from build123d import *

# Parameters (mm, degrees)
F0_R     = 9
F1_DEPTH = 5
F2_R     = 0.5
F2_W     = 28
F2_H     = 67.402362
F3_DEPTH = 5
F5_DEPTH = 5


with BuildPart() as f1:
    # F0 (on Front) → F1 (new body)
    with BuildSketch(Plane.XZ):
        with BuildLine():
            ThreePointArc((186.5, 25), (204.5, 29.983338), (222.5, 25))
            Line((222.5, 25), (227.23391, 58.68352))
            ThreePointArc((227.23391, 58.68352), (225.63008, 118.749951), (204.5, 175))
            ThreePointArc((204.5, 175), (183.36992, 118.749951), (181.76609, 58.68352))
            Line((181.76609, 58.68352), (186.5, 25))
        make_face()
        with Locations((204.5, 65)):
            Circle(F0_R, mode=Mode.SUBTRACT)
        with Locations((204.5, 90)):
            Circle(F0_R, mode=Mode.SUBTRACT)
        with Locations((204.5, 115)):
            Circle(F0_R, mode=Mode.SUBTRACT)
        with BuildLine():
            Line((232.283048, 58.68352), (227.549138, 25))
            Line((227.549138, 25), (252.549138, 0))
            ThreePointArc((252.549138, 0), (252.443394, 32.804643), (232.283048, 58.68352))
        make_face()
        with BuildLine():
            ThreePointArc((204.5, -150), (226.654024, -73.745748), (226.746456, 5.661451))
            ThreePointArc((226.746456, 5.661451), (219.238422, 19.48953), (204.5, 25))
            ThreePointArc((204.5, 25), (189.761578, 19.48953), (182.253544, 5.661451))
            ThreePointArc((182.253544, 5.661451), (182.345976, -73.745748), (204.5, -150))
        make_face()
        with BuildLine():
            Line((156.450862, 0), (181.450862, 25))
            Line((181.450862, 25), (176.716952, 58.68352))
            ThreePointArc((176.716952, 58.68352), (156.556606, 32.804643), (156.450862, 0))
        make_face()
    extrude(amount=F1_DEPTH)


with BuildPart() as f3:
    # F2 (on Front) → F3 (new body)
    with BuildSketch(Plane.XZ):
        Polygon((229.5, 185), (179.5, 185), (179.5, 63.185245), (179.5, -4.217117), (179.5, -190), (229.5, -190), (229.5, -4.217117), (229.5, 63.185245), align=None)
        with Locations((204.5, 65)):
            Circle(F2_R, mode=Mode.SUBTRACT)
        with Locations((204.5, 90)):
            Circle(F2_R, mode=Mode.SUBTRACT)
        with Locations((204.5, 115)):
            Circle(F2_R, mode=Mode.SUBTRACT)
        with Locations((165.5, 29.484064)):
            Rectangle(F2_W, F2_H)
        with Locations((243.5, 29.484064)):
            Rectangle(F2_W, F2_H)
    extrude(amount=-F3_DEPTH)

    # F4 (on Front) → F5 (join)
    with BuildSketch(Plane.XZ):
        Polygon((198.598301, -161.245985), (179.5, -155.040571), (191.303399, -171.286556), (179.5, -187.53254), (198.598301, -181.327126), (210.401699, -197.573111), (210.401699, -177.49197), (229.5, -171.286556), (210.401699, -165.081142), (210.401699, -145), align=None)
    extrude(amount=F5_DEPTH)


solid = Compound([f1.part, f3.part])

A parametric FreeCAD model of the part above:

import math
import FreeCAD as App
import Part
import Sketcher
from FreeCAD import Vector
Q = App.Units.Quantity

doc = App.newDocument("Part")
body = doc.addObject("PartDesign::Body", "Body")
body.AllowCompound = True

sketch1 = body.newObject("Sketcher::SketchObject", "Sketch")
sketch1.AttachmentSupport = (doc.getObject("XZ_Plane"), [""])
sketch1.MapMode = "FlatFace"
sketch1.addGeometry([
    Part.ArcOfCircle(Part.Circle(Vector(204, -5, 0), Vector(0, 0, 1), 35), math.radians(59), math.radians(121)),
    Part.LineSegment(Vector(222, 25, 0), Vector(227, 59, 0)),
    Part.ArcOfCircle(Part.Circle(Vector(48, 84, 0), Vector(0, 0, 1), 181), math.radians(-8), math.radians(30)),
    Part.ArcOfCircle(Part.Circle(Vector(361, 84, 0), Vector(0, 0, 1), 181), math.radians(150), math.radians(188)),
    Part.LineSegment(Vector(182, 59, 0), Vector(186, 25, 0)),
    Part.Circle(Vector(204, 65, 0), Vector(0, 0, 1), 9),
    Part.Circle(Vector(204, 90, 0), Vector(0, 0, 1), 9),
    Part.Circle(Vector(204, 115, 0), Vector(0, 0, 1), 9),
    Part.LineSegment(Vector(232, 59, 0), Vector(228, 25, 0)),
    Part.LineSegment(Vector(228, 25, 0), Vector(253, 0, 0)),
    Part.ArcOfCircle(Part.Circle(Vector(205, 16, 0), Vector(0, 0, 1), 51), math.radians(-19), math.radians(57)),
    Part.ArcOfCircle(Part.Circle(Vector(-53, -34, 0), Vector(0, 0, 1), 283), math.radians(-24), math.radians(8)),
    Part.ArcOfCircle(Part.Circle(Vector(205, 3, 0), Vector(0, 0, 1), 22), math.radians(8), math.radians(90)),
    Part.ArcOfCircle(Part.Circle(Vector(204, 3, 0), Vector(0, 0, 1), 22), math.radians(90), math.radians(172)),
    Part.ArcOfCircle(Part.Circle(Vector(462, -34, 0), Vector(0, 0, 1), 283), math.radians(172), math.radians(204)),
    Part.LineSegment(Vector(156, 0, 0), Vector(181, 25, 0)),
    Part.LineSegment(Vector(181, 25, 0), Vector(177, 59, 0)),
    Part.ArcOfCircle(Part.Circle(Vector(204, 16, 0), Vector(0, 0, 1), 51), math.radians(123), math.radians(199)),
], False)
sketch1.addConstraint([
    Sketcher.Constraint("Coincident", 0, 1, 1, 1),
    Sketcher.Constraint("Tangent", 1, 2, 2, 1),
    Sketcher.Constraint("Coincident", 2, 2, 3, 1),
    Sketcher.Constraint("Tangent", 3, 2, 4, 1),
    Sketcher.Constraint("Coincident", 4, 2, 0, 2),
    Sketcher.Constraint("Coincident", 8, 2, 9, 1),
    Sketcher.Constraint("Coincident", 9, 2, 10, 1),
    Sketcher.Constraint("Coincident", 10, 2, 8, 1),
    Sketcher.Constraint("Tangent", 11, 2, 12, 1),
    Sketcher.Constraint("Tangent", 12, 2, 13, 1),
    Sketcher.Constraint("Tangent", 13, 2, 14, 1),
    Sketcher.Constraint("Coincident", 14, 2, 11, 1),
    Sketcher.Constraint("Coincident", 15, 2, 16, 1),
    Sketcher.Constraint("Coincident", 16, 2, 17, 1),
    Sketcher.Constraint("Coincident", 17, 2, 15, 1),
    Sketcher.Constraint("Coincident", 17, 3, 10, 3),
    Sketcher.Constraint("Equal", 2, 3),
    Sketcher.Constraint("Equal", 5, 6),
    Sketcher.Constraint("Equal", 6, 7),
    Sketcher.Constraint("Equal", 12, 13),
    Sketcher.Constraint("Equal", 11, 14),
    Sketcher.Constraint("Equal", 10, 17),
    Sketcher.Constraint("PointOnObject", 9, 2, -1),
    Sketcher.Constraint("PointOnObject", 17, 2, -1),
    Sketcher.Constraint("Parallel", 1, 8),
    Sketcher.Constraint("Perpendicular", 9, 15),
    Sketcher.Constraint("Parallel", 4, 16),
    Sketcher.Constraint("Horizontal", 2, 3, 3, 3),
    Sketcher.Constraint("Horizontal", 11, 3, 14, 3),
    Sketcher.Constraint("Horizontal", 1, 2, 3, 2),
    Sketcher.Constraint("Horizontal", 0, 1, 4, 2),
    Sketcher.Constraint("Horizontal", 4, 2, 8, 2),
    Sketcher.Constraint("Horizontal", 3, 2, 10, 2),
    Sketcher.Constraint("Horizontal", 8, 2, 12, 2),
    Sketcher.Constraint("Horizontal", 12, 2, 15, 2),
    Sketcher.Constraint("Horizontal", 10, 2, 16, 2),
    Sketcher.Constraint("Vertical", 0, 3, 5, 3),
    Sketcher.Constraint("Vertical", 5, 3, 6, 3),
    Sketcher.Constraint("Vertical", 6, 3, 7, 3),
    Sketcher.Constraint("Vertical", 7, 3, 10, 3),
    Sketcher.Constraint("Vertical", 10, 3, 12, 3),
    Sketcher.Constraint("Vertical", 2, 2, 12, 2),
    Sketcher.Constraint("Diameter", 5, Q("18 mm")),
    Sketcher.Constraint("Radius", 0, Q("35 mm")),
    Sketcher.Constraint("Angle", 1, Q("82 deg")),
    Sketcher.Constraint("DistanceY", -1, 1, 5, 3, Q("65 mm")),
    Sketcher.Constraint("DistanceY", -1, 1, 6, 3, Q("90 mm")),
    Sketcher.Constraint("DistanceY", -1, 1, 7, 3, Q("115 mm")),
    Sketcher.Constraint("DistanceY", -1, 1, 0, 1, Q("25 mm")),
    Sketcher.Constraint("DistanceY", -1, 1, 2, 2, Q("175 mm")),
    Sketcher.Constraint("DistanceY", 14, 2, -1, 1, Q("150 mm")),
    Sketcher.Constraint("DistanceX", 10, 3, 0, 1, Q("17.999999 mm")),
    Sketcher.Constraint("DistanceX", -1, 1, 0, 3, Q("204.5 mm")),
    Sketcher.Constraint("Radius", 11, Q("282.939102 mm")),
    Sketcher.Constraint("Radius", 2, Q("181.473727 mm")),
    Sketcher.Constraint("Radius", 10, Q("50.721832 mm")),
    Sketcher.Constraint("Radius", 12, Q("22.465084 mm")),
])
pad1 = body.newObject("PartDesign::Pad", "Pad")
pad1.Profile = sketch1
pad1.Length = 5
body2 = doc.addObject("PartDesign::Body", "Body001")

sketch2 = body2.newObject("Sketcher::SketchObject", "Sketch001")
sketch2.AttachmentSupport = (doc.getObject("XZ_Plane001"), [""])
sketch2.MapMode = "FlatFace"
sketch2.addGeometry([
    Part.LineSegment(Vector(229.5, 185, 0), Vector(179.5, 185, 0)),
    Part.LineSegment(Vector(179.5, 185, 0), Vector(179.5, 63.2, 0)),
    Part.LineSegment(Vector(179.5, 63.2, 0), Vector(151.5, 63.2, 0)),
    Part.LineSegment(Vector(151.5, 63.2, 0), Vector(151.5, -4.2, 0)),
    Part.LineSegment(Vector(151.5, -4.2, 0), Vector(179.5, -4.2, 0)),
    Part.LineSegment(Vector(179.5, -4.2, 0), Vector(179.5, -190, 0)),
    Part.LineSegment(Vector(179.5, -190, 0), Vector(229.5, -190, 0)),
    Part.LineSegment(Vector(229.5, -190, 0), Vector(229.5, -4.2, 0)),
    Part.LineSegment(Vector(229.5, -4.2, 0), Vector(257.5, -4.2, 0)),
    Part.LineSegment(Vector(257.5, -4.2, 0), Vector(257.5, 63.2, 0)),
    Part.LineSegment(Vector(257.5, 63.2, 0), Vector(229.5, 63.2, 0)),
    Part.LineSegment(Vector(229.5, 63.2, 0), Vector(229.5, 185, 0)),
    Part.Circle(Vector(204.5, 65, 0), Vector(0, 0, 1), 0.5),
    Part.Circle(Vector(204.5, 90, 0), Vector(0, 0, 1), 0.5),
    Part.Circle(Vector(204.5, 115, 0), Vector(0, 0, 1), 0.5),
], False)
sketch2.addConstraint([
    Sketcher.Constraint("Coincident", 0, 2, 1, 1),
    Sketcher.Constraint("Coincident", 1, 2, 2, 1),
    Sketcher.Constraint("Coincident", 2, 2, 3, 1),
    Sketcher.Constraint("Coincident", 3, 2, 4, 1),
    Sketcher.Constraint("Coincident", 4, 2, 5, 1),
    Sketcher.Constraint("Coincident", 5, 2, 6, 1),
    Sketcher.Constraint("Coincident", 6, 2, 7, 1),
    Sketcher.Constraint("Coincident", 7, 2, 8, 1),
    Sketcher.Constraint("Coincident", 8, 2, 9, 1),
    Sketcher.Constraint("Coincident", 9, 2, 10, 1),
    Sketcher.Constraint("Coincident", 10, 2, 11, 1),
    Sketcher.Constraint("Coincident", 11, 2, 0, 1),
    Sketcher.Constraint("Horizontal", 0),
    Sketcher.Constraint("Vertical", 1),
    Sketcher.Constraint("Horizontal", 2),
    Sketcher.Constraint("Vertical", 3),
    Sketcher.Constraint("Horizontal", 4),
    Sketcher.Constraint("Vertical", 5),
    Sketcher.Constraint("Horizontal", 6),
    Sketcher.Constraint("Vertical", 7),
    Sketcher.Constraint("Horizontal", 8),
    Sketcher.Constraint("Vertical", 9),
    Sketcher.Constraint("Horizontal", 10),
    Sketcher.Constraint("Vertical", 11),
    Sketcher.Constraint("Equal", 12, 13),
    Sketcher.Constraint("Equal", 13, 14),
    Sketcher.Constraint("Horizontal", 4, 2, 7, 2),
    Sketcher.Constraint("Horizontal", 2, 2, 9, 2),
    Sketcher.Constraint("Vertical", 12, 3, 13, 3),
    Sketcher.Constraint("Vertical", 13, 3, 14, 3),
    Sketcher.Constraint("Vertical", 1, 2, 4, 2),
    Sketcher.Constraint("Vertical", 7, 2, 10, 2),
    Sketcher.Constraint("Equal", 4, 8),
    Sketcher.Constraint("Diameter", 12, Q("1 mm")),
    Sketcher.Constraint("DistanceX", 0, 2, 0, 1, Q("50 mm")),
    Sketcher.Constraint("DistanceX", 2, 2, 2, 1, Q("28 mm")),
    Sketcher.Constraint("DistanceY", -1, 1, 12, 3, Q("65 mm")),
    Sketcher.Constraint("DistanceY", -1, 1, 13, 3, Q("90 mm")),
    Sketcher.Constraint("DistanceY", -1, 1, 14, 3, Q("115 mm")),
    Sketcher.Constraint("DistanceY", -1, 1, 0, 2, Q("185 mm")),
    Sketcher.Constraint("DistanceY", 5, 2, -1, 1, Q("190 mm")),
    Sketcher.Constraint("DistanceX", 0, 2, 14, 3, Q("25 mm")),
    Sketcher.Constraint("DistanceX", -1, 1, 12, 3, Q("204.5 mm")),
    Sketcher.Constraint("DistanceY", 3, 2, 3, 1, Q("67.402362 mm")),
    Sketcher.Constraint("DistanceY", 1, 2, 1, 1, Q("121.814755 mm")),
])
pad2 = body2.newObject("PartDesign::Pad", "Pad001")
pad2.Profile = sketch2
pad2.Length = 5
pad2.Reversed = True

sketch3 = body2.newObject("Sketcher::SketchObject", "Sketch002")
sketch3.AttachmentSupport = (doc.getObject("XZ_Plane001"), [""])
sketch3.MapMode = "FlatFace"
sketch3.addGeometry([
    Part.LineSegment(Vector(199, -161, 0), Vector(180, -155, 0)),
    Part.LineSegment(Vector(180, -155, 0), Vector(191, -171, 0)),
    Part.LineSegment(Vector(191, -171, 0), Vector(180, -188, 0)),
    Part.LineSegment(Vector(180, -188, 0), Vector(199, -181, 0)),
    Part.LineSegment(Vector(199, -181, 0), Vector(210, -198, 0)),
    Part.LineSegment(Vector(210, -198, 0), Vector(210, -177, 0)),
    Part.LineSegment(Vector(210, -177, 0), Vector(230, -171, 0)),
    Part.LineSegment(Vector(230, -171, 0), Vector(210, -165, 0)),
    Part.LineSegment(Vector(210, -165, 0), Vector(210, -145, 0)),
    Part.LineSegment(Vector(210, -145, 0), Vector(199, -161, 0)),
], False)
sketch3.addConstraint([
    Sketcher.Constraint("Coincident", 0, 2, 1, 1),
    Sketcher.Constraint("Coincident", 1, 2, 2, 1),
    Sketcher.Constraint("Coincident", 2, 2, 3, 1),
    Sketcher.Constraint("Coincident", 3, 2, 4, 1),
    Sketcher.Constraint("Coincident", 4, 2, 5, 1),
    Sketcher.Constraint("Coincident", 5, 2, 6, 1),
    Sketcher.Constraint("Coincident", 6, 2, 7, 1),
    Sketcher.Constraint("Coincident", 7, 2, 8, 1),
    Sketcher.Constraint("Coincident", 8, 2, 9, 1),
    Sketcher.Constraint("Coincident", 9, 2, 0, 1),
    Sketcher.Constraint("Vertical", 5),
    Sketcher.Constraint("Vertical", 8),
    Sketcher.Constraint("Parallel", 1, 4),
    Sketcher.Constraint("Parallel", 3, 6),
    Sketcher.Constraint("Parallel", 0, 7),
    Sketcher.Constraint("Parallel", 2, 9),
    Sketcher.Constraint("Horizontal", 1, 2, 6, 2),
    Sketcher.Constraint("Vertical", 0, 2, 2, 2),
    Sketcher.Constraint("Vertical", 5, 2, 7, 2),
    Sketcher.Constraint("Vertical", 3, 2, 9, 2),
    Sketcher.Constraint("Equal", 5, 8),
    Sketcher.Constraint("Equal", 0, 1),
    Sketcher.Constraint("Equal", 1, 2),
    Sketcher.Constraint("Equal", 3, 4),
    Sketcher.Constraint("Equal", 4, 6),
    Sketcher.Constraint("Angle", 0, Q("162 deg")),
    Sketcher.Constraint("Angle", 1, Q("-54 deg")),
    Sketcher.Constraint("DistanceY", 8, 2, -1, 1, Q("145 mm")),
    Sketcher.Constraint("DistanceX", 2, 2, 6, 2, Q("50 mm")),
    Sketcher.Constraint("DistanceX", -1, 1, 0, 2, Q("179.5 mm")),
])
pad3 = body2.newObject("PartDesign::Pad", "Pad002")
pad3.Profile = sketch3
pad3.Length = 5

doc.recompute()
